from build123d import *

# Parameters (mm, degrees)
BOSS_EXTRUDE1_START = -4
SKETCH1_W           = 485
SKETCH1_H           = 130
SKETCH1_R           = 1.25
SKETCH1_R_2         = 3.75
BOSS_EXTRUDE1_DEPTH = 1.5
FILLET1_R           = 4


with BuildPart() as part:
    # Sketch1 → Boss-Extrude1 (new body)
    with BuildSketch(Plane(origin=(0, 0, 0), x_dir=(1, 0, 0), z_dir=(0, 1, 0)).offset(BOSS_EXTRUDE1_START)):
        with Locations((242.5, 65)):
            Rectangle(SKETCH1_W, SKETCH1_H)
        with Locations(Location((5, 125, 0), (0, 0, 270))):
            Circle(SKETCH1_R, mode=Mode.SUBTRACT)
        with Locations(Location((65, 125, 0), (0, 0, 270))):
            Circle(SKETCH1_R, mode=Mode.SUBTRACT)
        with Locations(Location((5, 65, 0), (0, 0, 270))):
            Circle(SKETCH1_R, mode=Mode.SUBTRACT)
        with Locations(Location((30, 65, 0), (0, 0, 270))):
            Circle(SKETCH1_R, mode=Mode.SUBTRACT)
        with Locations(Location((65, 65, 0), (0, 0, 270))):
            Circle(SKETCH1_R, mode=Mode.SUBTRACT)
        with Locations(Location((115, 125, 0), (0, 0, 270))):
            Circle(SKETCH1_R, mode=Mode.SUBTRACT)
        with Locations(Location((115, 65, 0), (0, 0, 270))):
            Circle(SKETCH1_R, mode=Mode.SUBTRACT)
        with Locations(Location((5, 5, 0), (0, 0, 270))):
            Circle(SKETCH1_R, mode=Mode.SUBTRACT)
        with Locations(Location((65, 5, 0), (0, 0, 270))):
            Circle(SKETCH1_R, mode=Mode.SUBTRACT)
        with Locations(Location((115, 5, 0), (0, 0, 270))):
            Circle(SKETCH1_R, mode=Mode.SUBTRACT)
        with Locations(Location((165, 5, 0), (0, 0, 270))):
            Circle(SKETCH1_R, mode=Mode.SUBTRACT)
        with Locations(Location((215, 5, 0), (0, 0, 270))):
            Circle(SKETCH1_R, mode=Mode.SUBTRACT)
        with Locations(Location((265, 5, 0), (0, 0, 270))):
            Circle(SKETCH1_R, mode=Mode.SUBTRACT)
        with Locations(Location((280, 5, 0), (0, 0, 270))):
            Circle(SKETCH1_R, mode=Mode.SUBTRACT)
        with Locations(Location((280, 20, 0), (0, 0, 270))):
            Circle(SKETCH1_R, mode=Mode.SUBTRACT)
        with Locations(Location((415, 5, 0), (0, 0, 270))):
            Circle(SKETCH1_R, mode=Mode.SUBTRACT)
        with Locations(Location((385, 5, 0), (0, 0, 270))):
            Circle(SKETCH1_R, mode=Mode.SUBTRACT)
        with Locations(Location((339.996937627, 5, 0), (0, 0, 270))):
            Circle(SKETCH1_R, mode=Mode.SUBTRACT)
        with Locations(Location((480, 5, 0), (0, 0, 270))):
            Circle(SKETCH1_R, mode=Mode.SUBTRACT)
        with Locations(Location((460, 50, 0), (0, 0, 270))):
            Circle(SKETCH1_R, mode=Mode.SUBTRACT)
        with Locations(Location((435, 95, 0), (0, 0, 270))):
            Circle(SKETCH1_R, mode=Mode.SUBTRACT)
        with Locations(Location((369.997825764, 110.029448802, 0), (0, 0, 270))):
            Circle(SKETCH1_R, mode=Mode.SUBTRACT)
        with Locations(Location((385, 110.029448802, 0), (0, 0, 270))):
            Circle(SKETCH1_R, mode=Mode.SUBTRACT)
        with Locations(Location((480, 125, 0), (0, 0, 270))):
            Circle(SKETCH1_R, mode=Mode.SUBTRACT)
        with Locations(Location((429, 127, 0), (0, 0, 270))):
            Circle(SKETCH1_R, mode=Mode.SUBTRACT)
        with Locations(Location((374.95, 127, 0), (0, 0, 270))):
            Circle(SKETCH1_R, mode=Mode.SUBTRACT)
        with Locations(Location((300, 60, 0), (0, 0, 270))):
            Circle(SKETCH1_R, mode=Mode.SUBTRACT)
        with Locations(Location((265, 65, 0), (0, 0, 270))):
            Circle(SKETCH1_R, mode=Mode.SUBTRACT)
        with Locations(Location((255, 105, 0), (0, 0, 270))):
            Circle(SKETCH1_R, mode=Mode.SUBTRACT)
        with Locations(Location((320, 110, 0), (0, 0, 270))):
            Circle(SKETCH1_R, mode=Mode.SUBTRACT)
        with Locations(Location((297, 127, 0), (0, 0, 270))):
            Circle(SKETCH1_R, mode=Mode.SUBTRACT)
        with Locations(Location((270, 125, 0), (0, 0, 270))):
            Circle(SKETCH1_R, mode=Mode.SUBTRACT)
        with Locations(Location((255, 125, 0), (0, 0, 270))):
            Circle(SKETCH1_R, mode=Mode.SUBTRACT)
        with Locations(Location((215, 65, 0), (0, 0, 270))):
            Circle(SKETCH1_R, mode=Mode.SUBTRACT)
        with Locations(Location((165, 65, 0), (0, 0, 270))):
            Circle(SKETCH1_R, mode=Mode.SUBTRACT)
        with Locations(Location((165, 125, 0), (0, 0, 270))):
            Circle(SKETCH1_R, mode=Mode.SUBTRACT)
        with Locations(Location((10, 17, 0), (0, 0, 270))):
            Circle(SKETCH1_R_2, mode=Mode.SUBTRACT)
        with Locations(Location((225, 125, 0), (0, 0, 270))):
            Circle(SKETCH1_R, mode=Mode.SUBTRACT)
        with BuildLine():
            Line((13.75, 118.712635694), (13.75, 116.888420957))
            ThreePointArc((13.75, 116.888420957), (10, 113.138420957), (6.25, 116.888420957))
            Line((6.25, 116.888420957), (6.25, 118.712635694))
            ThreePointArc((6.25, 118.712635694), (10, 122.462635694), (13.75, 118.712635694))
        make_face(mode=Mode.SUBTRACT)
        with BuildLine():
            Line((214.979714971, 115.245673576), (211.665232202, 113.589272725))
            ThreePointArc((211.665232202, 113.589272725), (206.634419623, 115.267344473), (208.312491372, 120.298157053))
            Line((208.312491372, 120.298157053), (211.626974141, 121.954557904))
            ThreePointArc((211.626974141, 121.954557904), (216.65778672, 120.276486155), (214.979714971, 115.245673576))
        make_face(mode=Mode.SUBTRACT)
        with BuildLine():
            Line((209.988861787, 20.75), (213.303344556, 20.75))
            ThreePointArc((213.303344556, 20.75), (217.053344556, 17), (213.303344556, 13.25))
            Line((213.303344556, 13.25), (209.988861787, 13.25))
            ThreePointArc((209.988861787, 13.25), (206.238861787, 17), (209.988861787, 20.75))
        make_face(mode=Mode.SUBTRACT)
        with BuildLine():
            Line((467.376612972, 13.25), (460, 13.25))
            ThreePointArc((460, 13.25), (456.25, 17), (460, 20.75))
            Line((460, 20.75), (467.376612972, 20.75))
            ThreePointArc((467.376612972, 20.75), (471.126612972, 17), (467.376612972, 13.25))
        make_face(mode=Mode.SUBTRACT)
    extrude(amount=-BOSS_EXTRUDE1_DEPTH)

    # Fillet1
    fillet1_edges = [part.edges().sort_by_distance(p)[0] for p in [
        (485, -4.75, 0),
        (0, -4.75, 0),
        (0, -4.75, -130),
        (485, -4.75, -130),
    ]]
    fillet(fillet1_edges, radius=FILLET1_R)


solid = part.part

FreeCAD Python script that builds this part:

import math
import FreeCAD as App
import Part
import Sketcher
Q = App.Units.Quantity


def edges_at(feature, points):
    """Names of the edges that pass closest to the given points."""
    edges = feature.Shape.Edges
    near = lambda p: min(range(len(edges)), key=lambda i: edges[i].distToShape(Part.Vertex(*p))[0])
    return sorted({f"Edge{near(p) + 1}" for p in points})

doc = App.newDocument("Part")
body = doc.addObject("PartDesign::Body", "Body")

# Sketch on XZ plane
sketch1 = body.newObject("Sketcher::SketchObject", "Sketch")
sketch1.AttachmentSupport = (doc.getObject("XZ_Plane"), [""])
sketch1.MapMode = "FlatFace"
sketch1.AttachmentOffset = App.Placement(App.Vector(0, 0, 4), App.Rotation())
sketch1.addGeometry(Part.LineSegment(App.Vector(0, -130, 0), App.Vector(0, 0, 0)), False)
sketch1.addGeometry(Part.LineSegment(App.Vector(0, 0, 0), App.Vector(485, 0, 0)), False)
sketch1.addGeometry(Part.LineSegment(App.Vector(485, 0, 0), App.Vector(485, -130, 0)), False)
sketch1.addGeometry(Part.LineSegment(App.Vector(485, -130, 0), App.Vector(0, -130, 0)), False)
sketch1.addGeometry(Part.Circle(App.Vector(5, -5, 0), App.Vector(0, 0, 1), 1.2), False)
sketch1.addGeometry(Part.Circle(App.Vector(10, -17, 0), App.Vector(0, 0, 1), 3.8), False)
sketch1.addGeometry(Part.Circle(App.Vector(65, -5, 0), App.Vector(0, 0, 1), 1.2), False)
sketch1.addGeometry(Part.Circle(App.Vector(115, -5, 0), App.Vector(0, 0, 1), 1.2), False)
sketch1.addGeometry(Part.Circle(App.Vector(165, -5, 0), App.Vector(0, 0, 1), 1.2), False)
sketch1.addGeometry(Part.Circle(App.Vector(215, -5, 0), App.Vector(0, 0, 1), 1.2), False)
sketch1.addGeometry(Part.ArcOfCircle(Part.Circle(App.Vector(210, -17, 0), App.Vector(0, 0, 1), 3.8), math.radians(90), math.radians(270)), False)
sketch1.addGeometry(Part.LineSegment(App.Vector(210, -20.8, 0), App.Vector(213.3, -20.8, 0)), False)
sketch1.addGeometry(Part.ArcOfCircle(Part.Circle(App.Vector(213.3, -17, 0), App.Vector(0, 0, 1), 3.8), math.radians(-90), math.radians(90)), False)
sketch1.addGeometry(Part.LineSegment(App.Vector(213.3, -13.2, 0), App.Vector(210, -13.2, 0)), False)
sketch1.addGeometry(Part.Circle(App.Vector(5, -65, 0), App.Vector(0, 0, 1), 1.2), False)
sketch1.addGeometry(Part.Circle(App.Vector(30, -65, 0), App.Vector(0, 0, 1), 1.2), False)
sketch1.addGeometry(Part.Circle(App.Vector(65, -65, 0), App.Vector(0, 0, 1), 1.2), False)
sketch1.addGeometry(Part.Circle(App.Vector(115, -65, 0), App.Vector(0, 0, 1), 1.2), False)
sketch1.addGeometry(Part.Circle(App.Vector(165, -65, 0), App.Vector(0, 0, 1), 1.2), False)
sketch1.addGeometry(Part.Circle(App.Vector(215, -65, 0), App.Vector(0, 0, 1), 1.2), False)
sketch1.addGeometry(Part.Circle(App.Vector(265, -5, 0), App.Vector(0, 0, 1), 1.2), False)
sketch1.addGeometry(Part.Circle(App.Vector(280, -5, 0), App.Vector(0, 0, 1), 1.2), False)
sketch1.addGeometry(Part.Circle(App.Vector(340, -5, 0), App.Vector(0, 0, 1), 1.2), False)
sketch1.addGeometry(Part.Circle(App.Vector(280, -20, 0), App.Vector(0, 0, 1), 1.2), False)
sketch1.addGeometry(Part.Circle(App.Vector(385, -5, 0), App.Vector(0, 0, 1), 1.2), False)
sketch1.addGeometry(Part.Circle(App.Vector(415, -5, 0), App.Vector(0, 0, 1), 1.2), False)
sketch1.addGeometry(Part.Circle(App.Vector(480, -5, 0), App.Vector(0, 0, 1), 1.2), False)
sketch1.addGeometry(Part.ArcOfCircle(Part.Circle(App.Vector(467.4, -17, 0), App.Vector(0, 0, 1), 3.8), math.radians(-90), math.radians(90)), False)
sketch1.addGeometry(Part.LineSegment(App.Vector(467.4, -13.2, 0), App.Vector(460, -13.2, 0)), False)
sketch1.addGeometry(Part.ArcOfCircle(Part.Circle(App.Vector(460, -17, 0), App.Vector(0, 0, 1), 3.8), math.radians(90), math.radians(270)), False)
sketch1.addGeometry(Part.LineSegment(App.Vector(460, -20.8, 0), App.Vector(467.4, -20.8, 0)), False)
sketch1.addGeometry(Part.Circle(App.Vector(265, -65, 0), App.Vector(0, 0, 1), 1.2), False)
sketch1.addGeometry(Part.Circle(App.Vector(300, -60, 0), App.Vector(0, 0, 1), 1.2), False)
sketch1.addGeometry(Part.Circle(App.Vector(460, -50, 0), App.Vector(0, 0, 1), 1.2), False)
sketch1.addGeometry(Part.ArcOfCircle(Part.Circle(App.Vector(10, -118.7, 0), App.Vector(0, 0, 1), 3.8), math.radians(180), math.radians(360)), False)
sketch1.addGeometry(Part.LineSegment(App.Vector(13.8, -118.7, 0), App.Vector(13.8, -116.9, 0)), False)
sketch1.addGeometry(Part.ArcOfCircle(Part.Circle(App.Vector(10, -116.9, 0), App.Vector(0, 0, 1), 3.8), math.radians(0), math.radians(180)), False)
sketch1.addGeometry(Part.LineSegment(App.Vector(6.2, -116.9, 0), App.Vector(6.2, -118.7, 0)), False)
sketch1.addGeometry(Part.Circle(App.Vector(5, -125, 0), App.Vector(0, 0, 1), 1.2), False)
sketch1.addGeometry(Part.Circle(App.Vector(65, -125, 0), App.Vector(0, 0, 1), 1.2), False)
sketch1.addGeometry(Part.Circle(App.Vector(115, -125, 0), App.Vector(0, 0, 1), 1.2), False)
sketch1.addGeometry(Part.Circle(App.Vector(165, -125, 0), App.Vector(0, 0, 1), 1.2), False)
sketch1.addGeometry(Part.ArcOfCircle(Part.Circle(App.Vector(213.3, -118.6, 0), App.Vector(0, 0, 1), 3.8), math.radians(-117), math.radians(63)), False)
sketch1.addGeometry(Part.LineSegment(App.Vector(215, -115.2, 0), App.Vector(211.7, -113.6, 0)), False)
sketch1.addGeometry(Part.ArcOfCircle(Part.Circle(App.Vector(210, -116.9, 0), App.Vector(0, 0, 1), 3.8), math.radians(63), math.radians(243)), False)
sketch1.addGeometry(Part.LineSegment(App.Vector(208.3, -120.3, 0), App.Vector(211.6, -122, 0)), False)
sketch1.addGeometry(Part.Circle(App.Vector(225, -125, 0), App.Vector(0, 0, 1), 1.2), False)
sketch1.addGeometry(Part.Circle(App.Vector(435, -95, 0), App.Vector(0, 0, 1), 1.2), False)
sketch1.addGeometry(Part.Circle(App.Vector(255, -105, 0), App.Vector(0, 0, 1), 1.2), False)
sketch1.addGeometry(Part.Circle(App.Vector(320, -110, 0), App.Vector(0, 0, 1), 1.2), False)
sketch1.addGeometry(Part.Circle(App.Vector(255, -125, 0), App.Vector(0, 0, 1), 1.2), False)
sketch1.addGeometry(Part.Circle(App.Vector(270, -125, 0), App.Vector(0, 0, 1), 1.2), False)
sketch1.addGeometry(Part.Circle(App.Vector(297, -127, 0), App.Vector(0, 0, 1), 1.2), False)
sketch1.addGeometry(Part.Circle(App.Vector(370, -110, 0), App.Vector(0, 0, 1), 1.2), False)
sketch1.addGeometry(Part.Circle(App.Vector(385, -110, 0), App.Vector(0, 0, 1), 1.2), False)
sketch1.addGeometry(Part.Circle(App.Vector(374.9, -127, 0), App.Vector(0, 0, 1), 1.2), False)
sketch1.addGeometry(Part.Circle(App.Vector(429, -127, 0), App.Vector(0, 0, 1), 1.2), False)
sketch1.addGeometry(Part.Circle(App.Vector(480, -125, 0), App.Vector(0, 0, 1), 1.2), False)
sketch1.addConstraint(Sketcher.Constraint("Coincident", 0, 2, 1, 1))
sketch1.addConstraint(Sketcher.Constraint("Coincident", 1, 2, 2, 1))
sketch1.addConstraint(Sketcher.Constraint("Coincident", 2, 2, 3, 1))
sketch1.addConstraint(Sketcher.Constraint("Coincident", 3, 2, 0, 1))
sketch1.addConstraint(Sketcher.Constraint("Tangent", 10, 2, 11, 1))
sketch1.addConstraint(Sketcher.Constraint("Tangent", 11, 2, 12, 1))
sketch1.addConstraint(Sketcher.Constraint("Tangent", 12, 2, 13, 1))
sketch1.addConstraint(Sketcher.Constraint("Tangent", 13, 2, 10, 1))
sketch1.addConstraint(Sketcher.Constraint("Tangent", 27, 2, 28, 1))
sketch1.addConstraint(Sketcher.Constraint("Tangent", 28, 2, 29, 1))
sketch1.addConstraint(Sketcher.Constraint("Tangent", 29, 2, 30, 1))
sketch1.addConstraint(Sketcher.Constraint("Tangent", 30, 2, 27, 1))
sketch1.addConstraint(Sketcher.Constraint("Tangent", 34, 2, 35, 1))
sketch1.addConstraint(Sketcher.Constraint("Tangent", 35, 2, 36, 1))
sketch1.addConstraint(Sketcher.Constraint("Tangent", 36, 2, 37, 1))
sketch1.addConstraint(Sketcher.Constraint("Tangent", 37, 2, 34, 1))
sketch1.addConstraint(Sketcher.Constraint("Tangent", 42, 2, 43, 1))
sketch1.addConstraint(Sketcher.Constraint("Tangent", 43, 2, 44, 1))
sketch1.addConstraint(Sketcher.Constraint("Tangent", 44, 2, 45, 1))
sketch1.addConstraint(Sketcher.Constraint("Tangent", 45, 2, 42, 1))
sketch1.addConstraint(Sketcher.Constraint("Vertical", 0))
sketch1.addConstraint(Sketcher.Constraint("Horizontal", 1))
sketch1.addConstraint(Sketcher.Constraint("Vertical", 2))
sketch1.addConstraint(Sketcher.Constraint("Horizontal", 3))
sketch1.addConstraint(Sketcher.Constraint("Horizontal", 11))
sketch1.addConstraint(Sketcher.Constraint("Horizontal", 13))
sketch1.addConstraint(Sketcher.Constraint("Horizontal", 28))
sketch1.addConstraint(Sketcher.Constraint("Horizontal", 30))
sketch1.addConstraint(Sketcher.Constraint("Vertical", 35))
sketch1.addConstraint(Sketcher.Constraint("Vertical", 37))
sketch1.addConstraint(Sketcher.Constraint("Coincident", 0, 2, -1, 1))
sketch1.addConstraint(Sketcher.Constraint("Equal", 4, 6))
sketch1.addConstraint(Sketcher.Constraint("Equal", 6, 7))
sketch1.addConstraint(Sketcher.Constraint("Equal", 7, 8))
sketch1.addConstraint(Sketcher.Constraint("Equal", 8, 9))
sketch1.addConstraint(Sketcher.Constraint("Equal", 5, 10))
sketch1.addConstraint(Sketcher.Constraint("Equal", 9, 14))
sketch1.addConstraint(Sketcher.Constraint("Equal", 14, 15))
sketch1.addConstraint(Sketcher.Constraint("Equal", 15, 16))
sketch1.addConstraint(Sketcher.Constraint("Equal", 16, 17))
sketch1.addConstraint(Sketcher.Constraint("Equal", 17, 18))
sketch1.addConstraint(Sketcher.Constraint("Equal", 18, 19))
sketch1.addConstraint(Sketcher.Constraint("Equal", 19, 20))
sketch1.addConstraint(Sketcher.Constraint("Equal", 20, 21))
sketch1.addConstraint(Sketcher.Constraint("Equal", 21, 22))
sketch1.addConstraint(Sketcher.Constraint("Equal", 22, 23))
sketch1.addConstraint(Sketcher.Constraint("Equal", 23, 24))
sketch1.addConstraint(Sketcher.Constraint("Equal", 24, 25))
sketch1.addConstraint(Sketcher.Constraint("Equal", 25, 26))
sketch1.addConstraint(Sketcher.Constraint("Equal", 12, 27))
sketch1.addConstraint(Sketcher.Constraint("Equal", 26, 31))
sketch1.addConstraint(Sketcher.Constraint("Equal", 31, 32))
sketch1.addConstraint(Sketcher.Constraint("Equal", 32, 33))
sketch1.addConstraint(Sketcher.Constraint("Equal", 29, 34))
sketch1.addConstraint(Sketcher.Constraint("Equal", 33, 38))
sketch1.addConstraint(Sketcher.Constraint("Equal", 38, 39))
sketch1.addConstraint(Sketcher.Constraint("Equal", 39, 40))
sketch1.addConstraint(Sketcher.Constraint("Equal", 40, 41))
sketch1.addConstraint(Sketcher.Constraint("Equal", 36, 42))
sketch1.addConstraint(Sketcher.Constraint("Equal", 42, 44))
sketch1.addConstraint(Sketcher.Constraint("Equal", 41, 46))
sketch1.addConstraint(Sketcher.Constraint("Equal", 46, 47))
sketch1.addConstraint(Sketcher.Constraint("Equal", 47, 48))
sketch1.addConstraint(Sketcher.Constraint("Equal", 48, 49))
sketch1.addConstraint(Sketcher.Constraint("Equal", 49, 50))
sketch1.addConstraint(Sketcher.Constraint("Equal", 50, 51))
sketch1.addConstraint(Sketcher.Constraint("Equal", 51, 52))
sketch1.addConstraint(Sketcher.Constraint("Equal", 52, 53))
sketch1.addConstraint(Sketcher.Constraint("Equal", 53, 54))
sketch1.addConstraint(Sketcher.Constraint("Equal", 54, 55))
sketch1.addConstraint(Sketcher.Constraint("Equal", 55, 56))
sketch1.addConstraint(Sketcher.Constraint("Equal", 56, 57))
sketch1.addConstraint(Sketcher.Constraint("Horizontal", 4, 3, 6, 3))
sketch1.addConstraint(Sketcher.Constraint("Horizontal", 6, 3, 7, 3))
sketch1.addConstraint(Sketcher.Constraint("Horizontal", 7, 3, 8, 3))
sketch1.addConstraint(Sketcher.Constraint("Horizontal", 8, 3, 9, 3))
sketch1.addConstraint(Sketcher.Constraint("Horizontal", 5, 3, 10, 3))
sketch1.addConstraint(Sketcher.Constraint("Horizontal", 14, 3, 15, 3))
sketch1.addConstraint(Sketcher.Constraint("Horizontal", 15, 3, 16, 3))
sketch1.addConstraint(Sketcher.Constraint("Horizontal", 16, 3, 17, 3))
sketch1.addConstraint(Sketcher.Constraint("Horizontal", 17, 3, 18, 3))
sketch1.addConstraint(Sketcher.Constraint("Horizontal", 18, 3, 19, 3))
sketch1.addConstraint(Sketcher.Constraint("Horizontal", 9, 3, 20, 3))
sketch1.addConstraint(Sketcher.Constraint("Horizontal", 20, 3, 21, 3))
sketch1.addConstraint(Sketcher.Constraint("Horizontal", 21, 3, 22, 3))
sketch1.addConstraint(Sketcher.Constraint("Horizontal", 22, 3, 24, 3))
sketch1.addConstraint(Sketcher.Constraint("Horizontal", 24, 3, 25, 3))
sketch1.addConstraint(Sketcher.Constraint("Horizontal", 25, 3, 26, 3))
sketch1.addConstraint(Sketcher.Constraint("Horizontal", 12, 3, 27, 3))
sketch1.addConstraint(Sketcher.Constraint("Horizontal", 19, 3, 31, 3))
sketch1.addConstraint(Sketcher.Constraint("Horizontal", 38, 3, 39, 3))
sketch1.addConstraint(Sketcher.Constraint("Horizontal", 39, 3, 40, 3))
sketch1.addConstraint(Sketcher.Constraint("Horizontal", 40, 3, 41, 3))
sketch1.addConstraint(Sketcher.Constraint("Horizontal", 41, 3, 46, 3))
sketch1.addConstraint(Sketcher.Constraint("Horizontal", 46, 3, 50, 3))
sketch1.addConstraint(Sketcher.Constraint("Horizontal", 50, 3, 51, 3))
sketch1.addConstraint(Sketcher.Constraint("Horizontal", 53, 3, 54, 3))
sketch1.addConstraint(Sketcher.Constraint("Horizontal", 52, 3, 55, 3))
sketch1.addConstraint(Sketcher.Constraint("Horizontal", 55, 3, 56, 3))
sketch1.addConstraint(Sketcher.Constraint("Horizontal", 51, 3, 57, 3))
sketch1.addConstraint(Sketcher.Constraint("Vertical", 4, 3, 14, 3))
sketch1.addConstraint(Sketcher.Constraint("Vertical", 6, 3, 16, 3))
sketch1.addConstraint(Sketcher.Constraint("Vertical", 7, 3, 17, 3))
sketch1.addConstraint(Sketcher.Constraint("Vertical", 8, 3, 18, 3))
sketch1.addConstraint(Sketcher.Constraint("Vertical", 9, 3, 19, 3))
sketch1.addConstraint(Sketcher.Constraint("Vertical", 21, 3, 23, 3))
sketch1.addConstraint(Sketcher.Constraint("Vertical", 20, 3, 31, 3))
sketch1.addConstraint(Sketcher.Constraint("Vertical", 29, 3, 33, 3))
sketch1.addConstraint(Sketcher.Constraint("Vertical", 5, 3, 34, 3))
sketch1.addConstraint(Sketcher.Constraint("Vertical", 14, 3, 38, 3))
sketch1.addConstraint(Sketcher.Constraint("Vertical", 16, 3, 39, 3))
sketch1.addConstraint(Sketcher.Constraint("Vertical", 17, 3, 40, 3))
sketch1.addConstraint(Sketcher.Constraint("Vertical", 18, 3, 41, 3))
sketch1.addConstraint(Sketcher.Constraint("Vertical", 12, 3, 42, 3))
sketch1.addConstraint(Sketcher.Constraint("Vertical", 10, 3, 44, 3))
sketch1.addConstraint(Sketcher.Constraint("Vertical", 48, 3, 50, 3))
sketch1.addConstraint(Sketcher.Constraint("Vertical", 24, 3, 54, 3))
sketch1.addConstraint(Sketcher.Constraint("Vertical", 26, 3, 57, 3))
sketch1.addConstraint(Sketcher.Constraint("Diameter", 4, Q("2.5 mm")))
sketch1.addConstraint(Sketcher.Constraint("Diameter", 5, Q("7.5 mm")))
sketch1.addConstraint(Sketcher.Constraint("DistanceX", 1, 1, 1, 2, Q("485 mm")))
sketch1.addConstraint(Sketcher.Constraint("DistanceY", 0, 1, 0, 2, Q("130 mm")))
sketch1.addConstraint(Sketcher.Constraint("DistanceX", -1, 1, 4, 3, Q("5 mm")))
sketch1.addConstraint(Sketcher.Constraint("DistanceY", 4, 3, -1, 1, Q("5 mm")))
sketch1.addConstraint(Sketcher.Constraint("DistanceX", -1, 1, 5, 3, Q("10 mm")))
sketch1.addConstraint(Sketcher.Constraint("DistanceY", 5, 3, -1, 1, Q("17 mm")))
sketch1.addConstraint(Sketcher.Constraint("DistanceX", -1, 1, 6, 3, Q("65 mm")))
sketch1.addConstraint(Sketcher.Constraint("DistanceX", -1, 1, 7, 3, Q("115 mm")))
sketch1.addConstraint(Sketcher.Constraint("DistanceX", -1, 1, 8, 3, Q("165 mm")))
sketch1.addConstraint(Sketcher.Constraint("DistanceX", -1, 1, 9, 3, Q("215 mm")))
sketch1.addConstraint(Sketcher.Constraint("DistanceY", 14, 3, -1, 1, Q("65 mm")))
sketch1.addConstraint(Sketcher.Constraint("DistanceX", -1, 1, 15, 3, Q("30 mm")))
sketch1.addConstraint(Sketcher.Constraint("DistanceX", -1, 1, 20, 3, Q("265 mm")))
sketch1.addConstraint(Sketcher.Constraint("DistanceX", -1, 1, 21, 3, Q("280 mm")))
sketch1.addConstraint(Sketcher.Constraint("DistanceY", 23, 3, -1, 1, Q("20 mm")))
sketch1.addConstraint(Sketcher.Constraint("DistanceX", -1, 1, 24, 3, Q("385 mm")))
sketch1.addConstraint(Sketcher.Constraint("DistanceX", -1, 1, 25, 3, Q("415 mm")))
sketch1.addConstraint(Sketcher.Constraint("DistanceX", -1, 1, 26, 3, Q("480 mm")))
sketch1.addConstraint(Sketcher.Constraint("DistanceX", -1, 1, 29, 3, Q("460 mm")))
sketch1.addConstraint(Sketcher.Constraint("DistanceX", -1, 1, 32, 3, Q("300 mm")))
sketch1.addConstraint(Sketcher.Constraint("DistanceY", 32, 3, -1, 1, Q("60 mm")))
sketch1.addConstraint(Sketcher.Constraint("DistanceY", 33, 3, -1, 1, Q("50 mm")))
sketch1.addConstraint(Sketcher.Constraint("DistanceY", 38, 3, -1, 1, Q("125 mm")))
sketch1.addConstraint(Sketcher.Constraint("DistanceX", -1, 1, 46, 3, Q("225 mm")))
sketch1.addConstraint(Sketcher.Constraint("DistanceX", -1, 1, 47, 3, Q("435 mm")))
sketch1.addConstraint(Sketcher.Constraint("DistanceY", 47, 3, -1, 1, Q("95 mm")))
sketch1.addConstraint(Sketcher.Constraint("DistanceX", -1, 1, 48, 3, Q("255 mm")))
sketch1.addConstraint(Sketcher.Constraint("DistanceY", 48, 3, -1, 1, Q("105 mm")))
sketch1.addConstraint(Sketcher.Constraint("DistanceX", -1, 1, 49, 3, Q("320 mm")))
sketch1.addConstraint(Sketcher.Constraint("DistanceY", 49, 3, -1, 1, Q("110 mm")))
sketch1.addConstraint(Sketcher.Constraint("DistanceX", -1, 1, 51, 3, Q("270 mm")))
sketch1.addConstraint(Sketcher.Constraint("DistanceX", -1, 1, 52, 3, Q("297 mm")))
sketch1.addConstraint(Sketcher.Constraint("DistanceY", 52, 3, -1, 1, Q("127 mm")))
sketch1.addConstraint(Sketcher.Constraint("DistanceX", -1, 1, 56, 3, Q("429 mm")))
sketch1.addConstraint(Sketcher.Constraint("DistanceX", -1, 1, 55, 3, Q("374.95 mm")))
sketch1.addConstraint(Sketcher.Constraint("Distance", 43, Q("3.705329 mm")))
sketch1.addConstraint(Sketcher.Constraint("DistanceX", 11, 1, 11, 2, Q("3.314483 mm")))
sketch1.addConstraint(Sketcher.Constraint("DistanceX", 28, 2, 28, 1, Q("7.376613 mm")))
sketch1.addConstraint(Sketcher.Constraint("DistanceY", 35, 1, 35, 2, Q("1.824215 mm")))
sketch1.addConstraint(Sketcher.Constraint("DistanceX", -1, 1, 10, 3, Q("209.988862 mm")))
sketch1.addConstraint(Sketcher.Constraint("DistanceY", 36, 3, -1, 1, Q("116.888421 mm")))
sketch1.addConstraint(Sketcher.Constraint("DistanceY", 53, 3, -1, 1, Q("110.029449 mm")))
sketch1.addConstraint(Sketcher.Constraint("DistanceX", -1, 1, 22, 3, Q("339.996938 mm")))
sketch1.addConstraint(Sketcher.Constraint("DistanceY", 42, 3, -1, 1, Q("118.600116 mm")))
sketch1.addConstraint(Sketcher.Constraint("DistanceX", -1, 1, 53, 3, Q("369.997826 mm")))
pad1 = body.newObject("PartDesign::Pad", "Pad")
pad1.Profile = sketch1
pad1.Length = 1.5
doc.recompute()

fillet = body.newObject("PartDesign::Fillet", "Fillet")
fillet.Base = (pad1, edges_at(pad1, [
    (485, -4.75, 0),
    (0, -4.75, 0),
    (0, -4.75, -130),
    (485, -4.75, -130),
]))
fillet.Radius = 4

doc.recompute()
